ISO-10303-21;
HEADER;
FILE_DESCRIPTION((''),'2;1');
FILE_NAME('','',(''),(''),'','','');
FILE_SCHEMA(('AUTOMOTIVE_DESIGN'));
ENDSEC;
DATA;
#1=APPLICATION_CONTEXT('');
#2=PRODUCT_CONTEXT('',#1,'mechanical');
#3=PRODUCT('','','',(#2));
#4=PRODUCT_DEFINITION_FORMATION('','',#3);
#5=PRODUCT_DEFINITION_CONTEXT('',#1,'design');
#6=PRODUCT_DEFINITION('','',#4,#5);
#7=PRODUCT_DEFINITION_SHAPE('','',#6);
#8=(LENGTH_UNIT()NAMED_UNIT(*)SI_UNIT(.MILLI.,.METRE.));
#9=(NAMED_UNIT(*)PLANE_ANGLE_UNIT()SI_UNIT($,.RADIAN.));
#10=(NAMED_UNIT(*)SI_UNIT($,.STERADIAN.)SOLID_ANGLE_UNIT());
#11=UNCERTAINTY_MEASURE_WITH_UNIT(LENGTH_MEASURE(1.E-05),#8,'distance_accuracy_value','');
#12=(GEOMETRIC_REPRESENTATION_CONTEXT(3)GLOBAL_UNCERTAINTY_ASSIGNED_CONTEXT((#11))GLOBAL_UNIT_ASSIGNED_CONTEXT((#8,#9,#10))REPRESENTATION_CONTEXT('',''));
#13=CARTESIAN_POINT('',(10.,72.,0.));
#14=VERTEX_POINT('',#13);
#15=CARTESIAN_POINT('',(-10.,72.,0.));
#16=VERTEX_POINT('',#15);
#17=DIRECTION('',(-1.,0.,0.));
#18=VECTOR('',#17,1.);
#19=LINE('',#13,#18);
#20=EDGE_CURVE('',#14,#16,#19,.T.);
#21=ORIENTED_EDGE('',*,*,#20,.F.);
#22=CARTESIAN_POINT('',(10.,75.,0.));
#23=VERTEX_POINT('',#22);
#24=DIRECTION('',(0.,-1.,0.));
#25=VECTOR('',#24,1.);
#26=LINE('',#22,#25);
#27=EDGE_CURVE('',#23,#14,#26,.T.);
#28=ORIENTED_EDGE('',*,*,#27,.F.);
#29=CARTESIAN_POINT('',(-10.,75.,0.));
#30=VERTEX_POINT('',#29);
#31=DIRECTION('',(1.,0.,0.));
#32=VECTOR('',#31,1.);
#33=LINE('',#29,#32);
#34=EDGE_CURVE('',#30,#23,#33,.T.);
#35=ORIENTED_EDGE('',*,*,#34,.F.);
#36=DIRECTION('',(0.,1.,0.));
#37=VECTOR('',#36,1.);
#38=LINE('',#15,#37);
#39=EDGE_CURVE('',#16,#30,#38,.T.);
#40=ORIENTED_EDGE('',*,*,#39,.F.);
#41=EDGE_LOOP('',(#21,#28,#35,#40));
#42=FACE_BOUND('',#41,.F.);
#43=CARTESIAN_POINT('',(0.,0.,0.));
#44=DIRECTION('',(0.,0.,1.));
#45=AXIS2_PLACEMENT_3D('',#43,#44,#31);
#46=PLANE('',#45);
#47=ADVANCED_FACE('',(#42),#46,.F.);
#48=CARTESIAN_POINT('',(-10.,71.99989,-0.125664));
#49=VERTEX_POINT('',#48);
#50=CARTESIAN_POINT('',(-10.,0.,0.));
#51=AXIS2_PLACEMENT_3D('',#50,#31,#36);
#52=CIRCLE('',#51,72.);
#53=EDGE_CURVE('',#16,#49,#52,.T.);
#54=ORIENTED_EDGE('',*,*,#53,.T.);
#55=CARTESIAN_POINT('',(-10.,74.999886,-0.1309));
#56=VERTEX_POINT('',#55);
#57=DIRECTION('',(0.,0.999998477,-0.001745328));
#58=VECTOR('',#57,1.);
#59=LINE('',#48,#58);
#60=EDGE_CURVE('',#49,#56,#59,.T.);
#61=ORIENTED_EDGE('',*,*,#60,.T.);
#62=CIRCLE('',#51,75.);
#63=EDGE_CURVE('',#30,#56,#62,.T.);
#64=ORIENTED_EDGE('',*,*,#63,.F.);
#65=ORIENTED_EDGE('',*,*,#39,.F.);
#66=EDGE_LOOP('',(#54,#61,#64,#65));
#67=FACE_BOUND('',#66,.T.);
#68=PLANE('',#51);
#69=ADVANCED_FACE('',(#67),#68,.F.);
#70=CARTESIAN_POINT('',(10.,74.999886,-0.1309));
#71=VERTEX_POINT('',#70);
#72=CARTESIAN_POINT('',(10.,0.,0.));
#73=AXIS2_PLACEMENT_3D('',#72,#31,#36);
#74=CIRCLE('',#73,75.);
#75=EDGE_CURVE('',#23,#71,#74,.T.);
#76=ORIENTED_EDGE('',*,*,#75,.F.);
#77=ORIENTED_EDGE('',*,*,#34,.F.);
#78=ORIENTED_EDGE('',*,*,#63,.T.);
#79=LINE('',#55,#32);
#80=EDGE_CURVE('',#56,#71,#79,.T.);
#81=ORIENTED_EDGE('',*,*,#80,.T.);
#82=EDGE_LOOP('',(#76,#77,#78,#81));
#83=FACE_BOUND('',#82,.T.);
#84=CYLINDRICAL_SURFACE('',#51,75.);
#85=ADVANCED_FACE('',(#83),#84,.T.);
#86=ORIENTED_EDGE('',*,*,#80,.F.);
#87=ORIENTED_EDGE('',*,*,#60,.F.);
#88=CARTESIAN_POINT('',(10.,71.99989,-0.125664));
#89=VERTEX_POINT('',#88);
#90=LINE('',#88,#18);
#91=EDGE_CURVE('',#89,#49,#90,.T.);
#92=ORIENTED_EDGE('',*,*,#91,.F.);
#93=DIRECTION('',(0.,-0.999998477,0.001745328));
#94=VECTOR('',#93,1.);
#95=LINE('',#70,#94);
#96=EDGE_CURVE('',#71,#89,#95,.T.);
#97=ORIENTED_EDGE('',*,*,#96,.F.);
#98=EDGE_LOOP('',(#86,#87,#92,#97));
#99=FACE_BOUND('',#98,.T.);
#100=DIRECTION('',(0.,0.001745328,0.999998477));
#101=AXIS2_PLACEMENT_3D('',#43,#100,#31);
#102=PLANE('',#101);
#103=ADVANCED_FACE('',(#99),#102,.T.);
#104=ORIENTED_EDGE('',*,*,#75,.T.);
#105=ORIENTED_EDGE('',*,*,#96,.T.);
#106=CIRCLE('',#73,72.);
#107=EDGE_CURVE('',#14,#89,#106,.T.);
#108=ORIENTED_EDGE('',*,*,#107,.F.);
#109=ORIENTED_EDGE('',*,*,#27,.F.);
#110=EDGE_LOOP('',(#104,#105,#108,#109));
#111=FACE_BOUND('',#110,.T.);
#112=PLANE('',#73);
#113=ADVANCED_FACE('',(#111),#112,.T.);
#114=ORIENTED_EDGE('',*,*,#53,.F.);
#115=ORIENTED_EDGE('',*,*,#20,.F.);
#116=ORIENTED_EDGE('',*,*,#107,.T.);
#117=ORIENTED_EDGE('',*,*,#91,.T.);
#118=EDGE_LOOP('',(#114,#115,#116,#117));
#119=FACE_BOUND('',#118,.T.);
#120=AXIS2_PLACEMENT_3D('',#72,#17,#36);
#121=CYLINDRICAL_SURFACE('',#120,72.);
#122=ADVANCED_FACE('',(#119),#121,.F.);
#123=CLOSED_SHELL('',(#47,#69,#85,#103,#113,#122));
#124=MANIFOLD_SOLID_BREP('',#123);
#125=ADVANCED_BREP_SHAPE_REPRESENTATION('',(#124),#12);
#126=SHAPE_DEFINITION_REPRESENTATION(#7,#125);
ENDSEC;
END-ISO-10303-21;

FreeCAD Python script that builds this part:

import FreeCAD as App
import Part
import Sketcher

doc = App.newDocument("Part")
body = doc.addObject("PartDesign::Body", "Body")

# Sketch on XY plane
sketch1 = doc.addObject("Sketcher::SketchObject", "Sketch")
body.addObject(sketch1)
sketch1.AttachmentSupport = (doc.XY_Plane, [""])
sketch1.MapMode = "FlatFace"
sketch1.addGeometry(Part.LineSegment(App.Vector(10, 75, 0), App.Vector(-10, 75, 0)), False)
sketch1.addGeometry(Part.LineSegment(App.Vector(-10, 75, 0), App.Vector(-10, 72, 0)), False)
sketch1.addGeometry(Part.LineSegment(App.Vector(-10, 72, 0), App.Vector(10, 72, 0)), False)
sketch1.addGeometry(Part.LineSegment(App.Vector(10, 72, 0), App.Vector(10, 75, 0)), False)
sketch1.addConstraint(Sketcher.Constraint("Coincident", 0, 2, 1, 1))
sketch1.addConstraint(Sketcher.Constraint("Coincident", 1, 2, 2, 1))
sketch1.addConstraint(Sketcher.Constraint("Coincident", 2, 2, 3, 1))
sketch1.addConstraint(Sketcher.Constraint("Coincident", 3, 2, 0, 1))
sketch1.addConstraint(Sketcher.Constraint("Horizontal", 0))
sketch1.addConstraint(Sketcher.Constraint("Vertical", 1))
sketch1.addConstraint(Sketcher.Constraint("Horizontal", 2))
sketch1.addConstraint(Sketcher.Constraint("Vertical", 3))
sketch1.addConstraint(Sketcher.Constraint("DistanceX", 0, 2, 0, 1, 20.0))
sketch1.addConstraint(Sketcher.Constraint("DistanceY", 1, 2, 1, 1, 3.0))
sketch1.addConstraint(Sketcher.Constraint("DistanceY", -1, 1, 0, 2, 75.0))
sketch1.addConstraint(Sketcher.Constraint("DistanceX", 0, 2, -1, 1, 10.0))
revolution = doc.addObject("PartDesign::Revolution", "Revolution")
body.addObject(revolution)
revolution.Profile = sketch1
revolution.ReferenceAxis = (sketch1, ["H_Axis"])
revolution.Angle = 359.9

doc.recompute()
